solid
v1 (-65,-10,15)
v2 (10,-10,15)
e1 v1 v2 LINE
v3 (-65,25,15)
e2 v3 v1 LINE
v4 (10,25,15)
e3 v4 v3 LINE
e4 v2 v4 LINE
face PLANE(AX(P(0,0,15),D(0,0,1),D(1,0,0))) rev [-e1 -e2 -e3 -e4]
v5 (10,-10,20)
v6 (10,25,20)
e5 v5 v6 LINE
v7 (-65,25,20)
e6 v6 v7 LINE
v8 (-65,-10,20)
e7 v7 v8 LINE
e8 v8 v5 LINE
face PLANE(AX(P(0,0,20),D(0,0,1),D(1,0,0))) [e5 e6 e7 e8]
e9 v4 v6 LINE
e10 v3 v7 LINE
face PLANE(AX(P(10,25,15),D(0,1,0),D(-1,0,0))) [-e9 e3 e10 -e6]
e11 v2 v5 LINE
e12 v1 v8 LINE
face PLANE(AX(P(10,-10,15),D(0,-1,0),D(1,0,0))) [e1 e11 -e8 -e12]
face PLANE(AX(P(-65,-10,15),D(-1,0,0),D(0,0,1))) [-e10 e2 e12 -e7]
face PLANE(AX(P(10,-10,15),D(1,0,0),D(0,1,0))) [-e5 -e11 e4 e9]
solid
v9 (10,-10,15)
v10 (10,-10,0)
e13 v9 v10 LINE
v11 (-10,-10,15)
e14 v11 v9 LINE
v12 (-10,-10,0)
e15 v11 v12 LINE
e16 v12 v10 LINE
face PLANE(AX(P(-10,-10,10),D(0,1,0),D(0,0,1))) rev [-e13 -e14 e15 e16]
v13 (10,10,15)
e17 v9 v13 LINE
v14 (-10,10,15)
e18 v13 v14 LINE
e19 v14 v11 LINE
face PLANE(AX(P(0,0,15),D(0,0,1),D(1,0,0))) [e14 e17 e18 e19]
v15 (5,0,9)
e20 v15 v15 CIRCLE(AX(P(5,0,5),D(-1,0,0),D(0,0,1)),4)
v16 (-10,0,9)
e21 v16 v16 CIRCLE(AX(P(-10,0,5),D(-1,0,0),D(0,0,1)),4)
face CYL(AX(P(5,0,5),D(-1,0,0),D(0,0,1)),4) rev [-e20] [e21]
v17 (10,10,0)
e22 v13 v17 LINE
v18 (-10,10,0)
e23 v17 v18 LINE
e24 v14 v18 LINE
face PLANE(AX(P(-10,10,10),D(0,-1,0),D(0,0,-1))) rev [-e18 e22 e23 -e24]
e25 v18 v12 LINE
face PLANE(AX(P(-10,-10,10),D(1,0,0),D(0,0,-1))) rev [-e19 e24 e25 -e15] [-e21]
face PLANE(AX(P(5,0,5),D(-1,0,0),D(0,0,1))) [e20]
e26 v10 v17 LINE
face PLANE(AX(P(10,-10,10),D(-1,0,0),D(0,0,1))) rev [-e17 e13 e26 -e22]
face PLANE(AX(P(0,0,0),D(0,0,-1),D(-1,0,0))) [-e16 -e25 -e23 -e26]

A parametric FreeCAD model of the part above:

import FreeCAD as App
import Part
import Sketcher
from FreeCAD import Vector

doc = App.newDocument("Part")
body = doc.addObject("PartDesign::Body", "Body")

# Sketch on XY plane
sketch1 = body.newObject("Sketcher::SketchObject", "Sketch")
sketch1.AttachmentSupport = (doc.getObject("XY_Plane"), [""])
sketch1.MapMode = "FlatFace"
sketch1.addGeometry(Part.LineSegment(Vector(-10, 10, 0), Vector(-10, -10, 0)), False)
sketch1.addGeometry(Part.LineSegment(Vector(-10, -10, 0), Vector(10, -10, 0)), False)
sketch1.addGeometry(Part.LineSegment(Vector(10, -10, 0), Vector(10, 10, 0)), False)
sketch1.addGeometry(Part.LineSegment(Vector(10, 10, 0), Vector(-10, 10, 0)), False)
sketch1.addConstraint(Sketcher.Constraint("Coincident", 0, 2, 1, 1))
sketch1.addConstraint(Sketcher.Constraint("Coincident", 1, 2, 2, 1))
sketch1.addConstraint(Sketcher.Constraint("Coincident", 2, 2, 3, 1))
sketch1.addConstraint(Sketcher.Constraint("Coincident", 3, 2, 0, 1))
sketch1.addConstraint(Sketcher.Constraint("Vertical", 0))
sketch1.addConstraint(Sketcher.Constraint("Horizontal", 1))
sketch1.addConstraint(Sketcher.Constraint("Vertical", 2))
sketch1.addConstraint(Sketcher.Constraint("Horizontal", 3))
sketch1.addConstraint(Sketcher.Constraint("Symmetric", 0, 2, 2, 2, -1, 1))
sketch1.addConstraint(Sketcher.Constraint("Equal", 3, 0))
sketch1.addConstraint(Sketcher.Constraint("DistanceX", 1, 1, 1, 2, 20.0))
pad1 = body.newObject("PartDesign::Pad", "Pad")
pad1.Profile = sketch1
pad1.Length = 10

# Sketch on YZ plane
sketch2 = body.newObject("Sketcher::SketchObject", "Sketch001")
sketch2.AttachmentSupport = (doc.getObject("YZ_Plane"), [""])
sketch2.MapMode = "FlatFace"
sketch2.AttachmentOffset = App.Placement(Vector(0, 0, -10), App.Rotation())
sketch2.addGeometry(Part.Circle(Vector(0, 5, 0), Vector(0, 0, 1), 4), False)
sketch2.addConstraint(Sketcher.Constraint("PointOnObject", 0, 3, -2))
sketch2.addConstraint(Sketcher.Constraint("Diameter", 0, 8.0))
sketch2.addConstraint(Sketcher.Constraint("DistanceY", -1, 1, 0, 3, 5.0))
pocket1 = body.newObject("PartDesign::Pocket", "Pocket")
pocket1.Profile = sketch2
pocket1.Length = 15
pocket1.Reversed = True

# Sketch on XY plane
sketch3 = body.newObject("Sketcher::SketchObject", "Sketch002")
sketch3.AttachmentSupport = (doc.getObject("XY_Plane"), [""])
sketch3.MapMode = "FlatFace"
sketch3.AttachmentOffset = App.Placement(Vector(0, 0, 10), App.Rotation())
sketch3.addGeometry(Part.LineSegment(Vector(-10, 10, 0), Vector(-10, -10, 0)), False)
sketch3.addGeometry(Part.LineSegment(Vector(-10, -10, 0), Vector(10, -10, 0)), False)
sketch3.addGeometry(Part.LineSegment(Vector(10, -10, 0), Vector(10, 10, 0)), False)
sketch3.addGeometry(Part.LineSegment(Vector(10, 10, 0), Vector(-10, 10, 0)), False)
sketch3.addConstraint(Sketcher.Constraint("Coincident", 0, 2, 1, 1))
sketch3.addConstraint(Sketcher.Constraint("Coincident", 1, 2, 2, 1))
sketch3.addConstraint(Sketcher.Constraint("Coincident", 2, 2, 3, 1))
sketch3.addConstraint(Sketcher.Constraint("Coincident", 3, 2, 0, 1))
sketch3.addConstraint(Sketcher.Constraint("Vertical", 0))
sketch3.addConstraint(Sketcher.Constraint("Horizontal", 1))
sketch3.addConstraint(Sketcher.Constraint("Vertical", 2))
sketch3.addConstraint(Sketcher.Constraint("Horizontal", 3))
sketch3.addConstraint(Sketcher.Constraint("Symmetric", 0, 2, 2, 2, -1, 1))
sketch3.addConstraint(Sketcher.Constraint("Equal", 3, 0))
sketch3.addConstraint(Sketcher.Constraint("DistanceX", 1, 1, 1, 2, 20.0))
pad2 = body.newObject("PartDesign::Pad", "Pad001")
pad2.Profile = sketch3
pad2.Length = 5
body2 = doc.addObject("PartDesign::Body", "Body001")

# Sketch on XY plane
sketch4 = body2.newObject("Sketcher::SketchObject", "Sketch003")
sketch4.AttachmentSupport = (doc.getObject("XY_Plane001"), [""])
sketch4.MapMode = "FlatFace"
sketch4.AttachmentOffset = App.Placement(Vector(0, 0, 20), App.Rotation())
sketch4.addGeometry(Part.LineSegment(Vector(-65, 25, 0), Vector(-65, -10, 0)), False)
sketch4.addGeometry(Part.LineSegment(Vector(-65, -10, 0), Vector(10, -10, 0)), False)
sketch4.addGeometry(Part.LineSegment(Vector(10, -10, 0), Vector(10, 25, 0)), False)
sketch4.addGeometry(Part.LineSegment(Vector(10, 25, 0), Vector(-65, 25, 0)), False)
sketch4.addConstraint(Sketcher.Constraint("Coincident", 0, 2, 1, 1))
sketch4.addConstraint(Sketcher.Constraint("Coincident", 1, 2, 2, 1))
sketch4.addConstraint(Sketcher.Constraint("Coincident", 2, 2, 3, 1))
sketch4.addConstraint(Sketcher.Constraint("Coincident", 3, 2, 0, 1))
sketch4.addConstraint(Sketcher.Constraint("Vertical", 0))
sketch4.addConstraint(Sketcher.Constraint("Horizontal", 1))
sketch4.addConstraint(Sketcher.Constraint("Vertical", 2))
sketch4.addConstraint(Sketcher.Constraint("Horizontal", 3))
sketch4.addConstraint(Sketcher.Constraint("DistanceX", 1, 1, 1, 2, 75.0))
sketch4.addConstraint(Sketcher.Constraint("DistanceY", 0, 2, 0, 1, 35.0))
sketch4.addConstraint(Sketcher.Constraint("DistanceX", 0, 2, -1, 1, 65.0))
sketch4.addConstraint(Sketcher.Constraint("DistanceY", 0, 2, -1, 1, 10.0))
pad3 = body2.newObject("PartDesign::Pad", "Pad002")
pad3.Profile = sketch4
pad3.Length = 5
pad3.Reversed = True

doc.recompute()
